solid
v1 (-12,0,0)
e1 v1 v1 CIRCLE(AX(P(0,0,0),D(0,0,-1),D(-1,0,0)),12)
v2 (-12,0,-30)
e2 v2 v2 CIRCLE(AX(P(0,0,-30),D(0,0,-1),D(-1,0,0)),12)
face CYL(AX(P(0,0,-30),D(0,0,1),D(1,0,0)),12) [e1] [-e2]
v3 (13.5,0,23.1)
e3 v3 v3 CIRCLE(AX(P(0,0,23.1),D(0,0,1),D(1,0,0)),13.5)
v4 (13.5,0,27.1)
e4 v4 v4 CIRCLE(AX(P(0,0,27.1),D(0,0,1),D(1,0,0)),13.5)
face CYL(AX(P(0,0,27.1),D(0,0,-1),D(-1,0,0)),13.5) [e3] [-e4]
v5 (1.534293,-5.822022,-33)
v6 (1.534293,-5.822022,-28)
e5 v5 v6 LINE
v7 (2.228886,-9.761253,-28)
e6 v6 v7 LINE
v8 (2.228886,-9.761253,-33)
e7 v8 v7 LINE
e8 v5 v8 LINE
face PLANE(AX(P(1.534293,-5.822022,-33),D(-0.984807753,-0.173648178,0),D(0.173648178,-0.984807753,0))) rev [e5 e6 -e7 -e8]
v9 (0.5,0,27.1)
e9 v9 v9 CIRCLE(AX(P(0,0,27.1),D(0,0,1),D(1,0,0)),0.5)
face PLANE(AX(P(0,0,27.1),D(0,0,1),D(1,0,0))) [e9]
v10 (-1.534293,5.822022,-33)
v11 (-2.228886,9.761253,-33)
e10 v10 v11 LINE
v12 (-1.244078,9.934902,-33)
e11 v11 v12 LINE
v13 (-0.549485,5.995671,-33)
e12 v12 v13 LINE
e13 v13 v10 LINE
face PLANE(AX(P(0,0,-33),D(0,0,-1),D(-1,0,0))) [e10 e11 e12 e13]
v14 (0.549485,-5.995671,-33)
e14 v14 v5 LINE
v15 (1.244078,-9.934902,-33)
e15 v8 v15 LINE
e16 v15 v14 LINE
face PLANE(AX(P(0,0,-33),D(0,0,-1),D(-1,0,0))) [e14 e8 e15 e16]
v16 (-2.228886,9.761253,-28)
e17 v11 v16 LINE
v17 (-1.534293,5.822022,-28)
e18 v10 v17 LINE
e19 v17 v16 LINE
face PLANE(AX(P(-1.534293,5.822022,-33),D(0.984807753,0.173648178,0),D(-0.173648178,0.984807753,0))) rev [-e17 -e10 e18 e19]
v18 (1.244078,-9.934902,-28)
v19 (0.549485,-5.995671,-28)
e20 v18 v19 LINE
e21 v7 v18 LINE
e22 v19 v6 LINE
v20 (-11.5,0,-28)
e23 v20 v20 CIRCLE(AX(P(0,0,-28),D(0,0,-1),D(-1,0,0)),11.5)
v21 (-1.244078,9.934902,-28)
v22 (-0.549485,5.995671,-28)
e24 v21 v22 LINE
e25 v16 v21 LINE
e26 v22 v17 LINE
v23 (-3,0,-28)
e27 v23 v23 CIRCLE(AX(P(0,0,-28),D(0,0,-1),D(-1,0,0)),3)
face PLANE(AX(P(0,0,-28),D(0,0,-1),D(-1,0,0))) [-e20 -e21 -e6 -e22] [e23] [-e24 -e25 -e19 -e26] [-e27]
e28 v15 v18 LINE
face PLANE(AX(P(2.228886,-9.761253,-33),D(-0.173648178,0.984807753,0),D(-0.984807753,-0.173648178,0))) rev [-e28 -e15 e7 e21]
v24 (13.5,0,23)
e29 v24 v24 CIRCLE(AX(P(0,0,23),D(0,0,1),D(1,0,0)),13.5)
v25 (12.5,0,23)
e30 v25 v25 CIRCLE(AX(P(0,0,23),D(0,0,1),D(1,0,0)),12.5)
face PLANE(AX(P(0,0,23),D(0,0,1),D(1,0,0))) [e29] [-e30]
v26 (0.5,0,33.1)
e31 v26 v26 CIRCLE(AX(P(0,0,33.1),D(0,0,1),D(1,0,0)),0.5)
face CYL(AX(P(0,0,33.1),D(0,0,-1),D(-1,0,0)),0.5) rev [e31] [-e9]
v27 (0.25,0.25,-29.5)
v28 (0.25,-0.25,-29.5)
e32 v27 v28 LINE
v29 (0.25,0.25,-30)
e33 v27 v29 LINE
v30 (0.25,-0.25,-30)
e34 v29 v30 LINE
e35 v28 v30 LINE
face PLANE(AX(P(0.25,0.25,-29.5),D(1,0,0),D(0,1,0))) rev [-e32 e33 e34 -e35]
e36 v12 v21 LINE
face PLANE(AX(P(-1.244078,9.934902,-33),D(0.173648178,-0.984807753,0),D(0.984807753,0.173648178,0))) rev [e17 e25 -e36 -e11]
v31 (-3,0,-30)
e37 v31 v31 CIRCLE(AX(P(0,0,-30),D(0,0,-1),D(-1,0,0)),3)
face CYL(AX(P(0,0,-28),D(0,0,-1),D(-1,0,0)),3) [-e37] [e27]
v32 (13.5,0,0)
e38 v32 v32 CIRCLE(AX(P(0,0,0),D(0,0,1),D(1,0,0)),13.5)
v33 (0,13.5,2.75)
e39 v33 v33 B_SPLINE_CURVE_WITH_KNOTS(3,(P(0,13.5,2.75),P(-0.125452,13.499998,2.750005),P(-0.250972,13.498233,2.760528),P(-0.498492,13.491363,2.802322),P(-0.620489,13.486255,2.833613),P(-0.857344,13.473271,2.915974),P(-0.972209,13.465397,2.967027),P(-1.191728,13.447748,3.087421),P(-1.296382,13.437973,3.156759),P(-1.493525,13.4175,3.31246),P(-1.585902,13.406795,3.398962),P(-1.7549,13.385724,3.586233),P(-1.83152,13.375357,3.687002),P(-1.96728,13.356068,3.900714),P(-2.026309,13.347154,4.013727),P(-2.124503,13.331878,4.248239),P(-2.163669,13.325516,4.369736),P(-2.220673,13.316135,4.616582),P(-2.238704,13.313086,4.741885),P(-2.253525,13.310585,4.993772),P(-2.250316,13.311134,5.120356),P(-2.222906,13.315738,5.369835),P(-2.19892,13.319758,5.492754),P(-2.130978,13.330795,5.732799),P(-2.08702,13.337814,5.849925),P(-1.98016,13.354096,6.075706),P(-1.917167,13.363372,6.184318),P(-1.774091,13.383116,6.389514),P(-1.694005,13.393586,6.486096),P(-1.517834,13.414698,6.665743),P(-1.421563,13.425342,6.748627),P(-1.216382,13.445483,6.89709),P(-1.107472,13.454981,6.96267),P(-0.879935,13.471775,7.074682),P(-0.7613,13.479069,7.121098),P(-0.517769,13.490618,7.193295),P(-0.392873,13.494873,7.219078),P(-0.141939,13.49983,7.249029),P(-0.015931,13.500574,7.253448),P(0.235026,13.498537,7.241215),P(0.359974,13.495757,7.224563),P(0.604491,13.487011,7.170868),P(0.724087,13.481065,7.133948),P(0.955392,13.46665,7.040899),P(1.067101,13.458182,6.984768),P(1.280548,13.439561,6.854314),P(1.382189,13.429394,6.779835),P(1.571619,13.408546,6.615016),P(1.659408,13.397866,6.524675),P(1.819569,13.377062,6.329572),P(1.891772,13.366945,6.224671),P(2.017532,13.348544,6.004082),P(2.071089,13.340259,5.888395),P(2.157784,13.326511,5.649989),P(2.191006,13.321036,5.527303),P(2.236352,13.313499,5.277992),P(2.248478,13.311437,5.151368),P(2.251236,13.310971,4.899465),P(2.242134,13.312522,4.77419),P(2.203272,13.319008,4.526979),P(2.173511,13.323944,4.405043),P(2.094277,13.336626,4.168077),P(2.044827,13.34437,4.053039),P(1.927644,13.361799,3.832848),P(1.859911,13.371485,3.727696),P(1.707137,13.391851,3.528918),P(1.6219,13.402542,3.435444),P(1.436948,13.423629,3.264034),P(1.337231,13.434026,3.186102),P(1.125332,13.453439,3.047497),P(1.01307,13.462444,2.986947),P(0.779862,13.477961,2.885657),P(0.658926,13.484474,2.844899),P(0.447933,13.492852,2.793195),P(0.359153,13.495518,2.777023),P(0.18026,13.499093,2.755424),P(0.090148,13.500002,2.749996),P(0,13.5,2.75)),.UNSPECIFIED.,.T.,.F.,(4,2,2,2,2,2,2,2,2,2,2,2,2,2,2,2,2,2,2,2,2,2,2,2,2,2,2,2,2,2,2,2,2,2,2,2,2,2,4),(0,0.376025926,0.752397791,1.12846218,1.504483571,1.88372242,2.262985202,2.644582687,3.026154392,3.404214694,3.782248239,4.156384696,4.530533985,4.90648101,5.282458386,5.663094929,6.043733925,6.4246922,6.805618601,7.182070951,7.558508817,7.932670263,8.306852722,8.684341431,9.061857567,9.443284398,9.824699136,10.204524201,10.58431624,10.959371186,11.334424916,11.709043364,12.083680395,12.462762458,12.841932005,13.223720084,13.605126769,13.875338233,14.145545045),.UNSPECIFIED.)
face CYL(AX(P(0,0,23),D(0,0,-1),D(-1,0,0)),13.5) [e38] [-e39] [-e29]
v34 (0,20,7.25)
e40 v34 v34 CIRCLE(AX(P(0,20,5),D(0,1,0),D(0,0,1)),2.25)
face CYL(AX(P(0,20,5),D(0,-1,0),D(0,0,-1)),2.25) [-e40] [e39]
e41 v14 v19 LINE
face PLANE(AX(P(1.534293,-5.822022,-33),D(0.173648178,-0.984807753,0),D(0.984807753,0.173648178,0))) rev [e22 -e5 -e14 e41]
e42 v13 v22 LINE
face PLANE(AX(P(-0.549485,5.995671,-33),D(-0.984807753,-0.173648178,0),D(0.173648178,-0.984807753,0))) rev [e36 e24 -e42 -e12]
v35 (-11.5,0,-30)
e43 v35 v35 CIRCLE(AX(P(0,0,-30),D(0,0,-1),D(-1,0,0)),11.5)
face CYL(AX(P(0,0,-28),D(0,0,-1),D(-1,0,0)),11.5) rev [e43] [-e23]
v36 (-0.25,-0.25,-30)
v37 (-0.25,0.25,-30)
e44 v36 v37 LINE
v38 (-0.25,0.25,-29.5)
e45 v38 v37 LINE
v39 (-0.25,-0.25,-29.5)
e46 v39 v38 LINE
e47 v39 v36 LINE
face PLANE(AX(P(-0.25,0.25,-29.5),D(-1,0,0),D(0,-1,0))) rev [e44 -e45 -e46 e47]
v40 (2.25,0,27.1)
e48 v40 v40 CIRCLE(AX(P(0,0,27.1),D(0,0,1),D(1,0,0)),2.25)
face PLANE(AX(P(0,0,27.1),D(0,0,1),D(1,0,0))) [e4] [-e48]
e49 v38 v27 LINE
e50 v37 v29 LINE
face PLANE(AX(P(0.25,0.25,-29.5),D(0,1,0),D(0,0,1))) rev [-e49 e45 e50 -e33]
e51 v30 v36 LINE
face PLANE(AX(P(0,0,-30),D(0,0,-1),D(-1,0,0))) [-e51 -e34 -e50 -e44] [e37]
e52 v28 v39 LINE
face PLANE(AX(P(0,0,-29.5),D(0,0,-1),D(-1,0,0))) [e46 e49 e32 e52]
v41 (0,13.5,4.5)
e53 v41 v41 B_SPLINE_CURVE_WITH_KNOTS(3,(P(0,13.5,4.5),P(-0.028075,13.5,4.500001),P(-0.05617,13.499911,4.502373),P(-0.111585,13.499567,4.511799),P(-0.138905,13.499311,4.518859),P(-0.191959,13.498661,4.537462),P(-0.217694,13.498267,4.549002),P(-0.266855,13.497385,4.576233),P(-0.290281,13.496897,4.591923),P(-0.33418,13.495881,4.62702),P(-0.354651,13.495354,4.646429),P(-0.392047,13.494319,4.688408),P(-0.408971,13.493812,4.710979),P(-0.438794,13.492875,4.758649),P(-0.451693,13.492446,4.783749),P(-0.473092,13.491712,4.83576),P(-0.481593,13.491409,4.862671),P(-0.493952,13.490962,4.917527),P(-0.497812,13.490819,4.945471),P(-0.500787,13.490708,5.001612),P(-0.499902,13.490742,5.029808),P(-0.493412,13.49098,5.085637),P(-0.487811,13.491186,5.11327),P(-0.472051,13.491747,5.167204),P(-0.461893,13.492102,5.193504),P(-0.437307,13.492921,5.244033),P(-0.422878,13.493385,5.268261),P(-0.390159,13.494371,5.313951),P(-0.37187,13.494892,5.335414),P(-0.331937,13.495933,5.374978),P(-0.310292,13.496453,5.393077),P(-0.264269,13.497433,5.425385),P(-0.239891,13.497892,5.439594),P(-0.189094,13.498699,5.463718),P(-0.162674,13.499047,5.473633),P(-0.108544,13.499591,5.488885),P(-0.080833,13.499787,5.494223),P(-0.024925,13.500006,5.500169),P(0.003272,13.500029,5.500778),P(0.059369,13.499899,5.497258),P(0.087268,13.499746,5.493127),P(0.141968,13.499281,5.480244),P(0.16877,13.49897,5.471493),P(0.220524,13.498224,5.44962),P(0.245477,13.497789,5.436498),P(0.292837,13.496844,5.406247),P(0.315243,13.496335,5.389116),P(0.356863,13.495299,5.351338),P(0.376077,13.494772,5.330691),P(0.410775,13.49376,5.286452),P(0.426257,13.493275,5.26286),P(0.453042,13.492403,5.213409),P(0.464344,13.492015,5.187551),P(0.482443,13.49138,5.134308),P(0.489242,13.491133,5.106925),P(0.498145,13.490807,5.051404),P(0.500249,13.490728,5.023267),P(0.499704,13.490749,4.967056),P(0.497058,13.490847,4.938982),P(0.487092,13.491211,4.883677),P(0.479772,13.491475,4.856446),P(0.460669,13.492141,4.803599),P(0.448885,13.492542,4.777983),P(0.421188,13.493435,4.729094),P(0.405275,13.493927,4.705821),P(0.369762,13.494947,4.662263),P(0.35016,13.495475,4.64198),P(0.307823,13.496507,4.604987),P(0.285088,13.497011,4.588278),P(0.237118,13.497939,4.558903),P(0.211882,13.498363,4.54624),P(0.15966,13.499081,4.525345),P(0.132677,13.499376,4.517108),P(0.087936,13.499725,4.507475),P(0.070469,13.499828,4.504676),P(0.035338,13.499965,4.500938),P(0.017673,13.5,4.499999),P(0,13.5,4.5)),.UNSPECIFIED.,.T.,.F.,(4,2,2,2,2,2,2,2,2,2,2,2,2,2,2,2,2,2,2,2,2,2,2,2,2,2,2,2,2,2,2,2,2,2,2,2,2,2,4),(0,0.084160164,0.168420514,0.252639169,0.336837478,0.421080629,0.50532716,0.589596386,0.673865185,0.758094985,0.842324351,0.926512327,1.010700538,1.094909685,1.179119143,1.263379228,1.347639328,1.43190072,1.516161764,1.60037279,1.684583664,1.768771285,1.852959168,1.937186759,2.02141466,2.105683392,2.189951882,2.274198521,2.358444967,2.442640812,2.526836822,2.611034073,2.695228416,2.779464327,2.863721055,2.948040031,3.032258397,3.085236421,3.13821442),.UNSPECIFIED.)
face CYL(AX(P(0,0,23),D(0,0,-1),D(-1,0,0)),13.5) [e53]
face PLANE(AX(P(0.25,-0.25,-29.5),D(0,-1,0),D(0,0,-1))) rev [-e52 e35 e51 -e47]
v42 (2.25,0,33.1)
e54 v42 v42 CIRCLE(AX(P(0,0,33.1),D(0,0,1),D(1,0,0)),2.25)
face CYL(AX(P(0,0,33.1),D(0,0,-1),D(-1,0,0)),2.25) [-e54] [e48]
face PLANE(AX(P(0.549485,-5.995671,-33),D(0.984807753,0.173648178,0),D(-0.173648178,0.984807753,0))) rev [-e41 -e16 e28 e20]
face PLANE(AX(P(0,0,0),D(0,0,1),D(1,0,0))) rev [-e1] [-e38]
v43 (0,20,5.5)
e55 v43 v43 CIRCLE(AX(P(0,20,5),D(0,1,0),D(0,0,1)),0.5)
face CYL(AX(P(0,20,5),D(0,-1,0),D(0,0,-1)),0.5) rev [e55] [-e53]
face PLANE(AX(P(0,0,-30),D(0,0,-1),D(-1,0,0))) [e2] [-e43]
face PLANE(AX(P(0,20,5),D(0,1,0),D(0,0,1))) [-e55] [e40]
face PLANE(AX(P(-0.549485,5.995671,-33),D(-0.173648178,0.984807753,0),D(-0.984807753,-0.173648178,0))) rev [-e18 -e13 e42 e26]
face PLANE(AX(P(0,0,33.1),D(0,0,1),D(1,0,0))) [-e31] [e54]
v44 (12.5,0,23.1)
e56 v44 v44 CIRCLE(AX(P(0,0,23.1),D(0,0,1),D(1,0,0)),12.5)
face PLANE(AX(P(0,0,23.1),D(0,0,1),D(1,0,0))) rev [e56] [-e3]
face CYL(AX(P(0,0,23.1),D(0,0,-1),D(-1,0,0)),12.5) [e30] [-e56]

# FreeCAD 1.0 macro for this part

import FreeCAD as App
import Part
import Sketcher

V = App.Vector
Q = App.Units.Quantity

doc = App.newDocument("Part")
body = doc.addObject("PartDesign::Body", "Body")

# Sketch on XY plane
sketch1 = body.newObject("Sketcher::SketchObject", "Sketch")
sketch1.AttachmentSupport = (doc.getObject("XY_Plane"), [""])
sketch1.MapMode = "FlatFace"
sketch1.addGeometry(Part.Circle(V(0, 0, 0), V(0, 0, 1), 14), False)
sketch1.addConstraint([
    Sketcher.Constraint("Coincident", 0, 3, -1, 1),
    Sketcher.Constraint("Diameter", 0, Q("27 mm")),
])
pad1 = body.newObject("PartDesign::Pad", "Pad")
pad1.Profile = sketch1
pad1.Length = 23

# Sketch on XY plane
sketch2 = body.newObject("Sketcher::SketchObject", "Sketch001")
sketch2.AttachmentSupport = (doc.getObject("XY_Plane"), [""])
sketch2.MapMode = "FlatFace"
sketch2.AttachmentOffset = App.Placement(V(0, 0, 23), App.Rotation())
sketch2.addGeometry(Part.Circle(V(0, 0, 0), V(0, 0, 1), 12), False)
sketch2.addConstraint([
    Sketcher.Constraint("Coincident", 0, 3, -1, 1),
    Sketcher.Constraint("Diameter", 0, Q("25 mm")),
])
pad2 = body.newObject("PartDesign::Pad", "Pad001")
pad2.Profile = sketch2
pad2.Length = 0.1

# Sketch on XY plane
sketch3 = body.newObject("Sketcher::SketchObject", "Sketch002")
sketch3.AttachmentSupport = (doc.getObject("XY_Plane"), [""])
sketch3.MapMode = "FlatFace"
sketch3.AttachmentOffset = App.Placement(V(0, 0, 23.1), App.Rotation())
sketch3.addGeometry(Part.Circle(V(0, 0, 0), V(0, 0, 1), 14), False)
sketch3.addConstraint([
    Sketcher.Constraint("Coincident", 0, 3, -1, 1),
    Sketcher.Constraint("Diameter", 0, Q("27 mm")),
])
pad3 = body.newObject("PartDesign::Pad", "Pad002")
pad3.Profile = sketch3
pad3.Length = 4

# Sketch on XY plane
sketch4 = body.newObject("Sketcher::SketchObject", "Sketch003")
sketch4.AttachmentSupport = (doc.getObject("XY_Plane"), [""])
sketch4.MapMode = "FlatFace"
sketch4.addGeometry(Part.Circle(V(0, 0, 0), V(0, 0, 1), 12), False)
sketch4.addConstraint([
    Sketcher.Constraint("Coincident", 0, 3, -1, 1),
    Sketcher.Constraint("Diameter", 0, Q("24 mm")),
])
pad4 = body.newObject("PartDesign::Pad", "Pad003")
pad4.Profile = sketch4
pad4.Length = 30
pad4.Reversed = True

# Sketch on XY plane
sketch5 = body.newObject("Sketcher::SketchObject", "Sketch004")
sketch5.AttachmentSupport = (doc.getObject("XY_Plane"), [""])
sketch5.MapMode = "FlatFace"
sketch5.AttachmentOffset = App.Placement(V(0, 0, -30), App.Rotation())
sketch5.addGeometry([
    Part.Circle(V(0, 0, 0), V(0, 0, 1), 11.5),
    Part.Circle(V(0, 0, 0), V(0, 0, 1), 3),
], False)
sketch5.addConstraint([
    Sketcher.Constraint("Coincident", 0, 3, -1, 1),
    Sketcher.Constraint("Coincident", 1, 3, -1, 1),
    Sketcher.Constraint("Diameter", 0, Q("23 mm")),
    Sketcher.Constraint("Diameter", 1, Q("6 mm")),
])
pocket1 = body.newObject("PartDesign::Pocket", "Pocket")
pocket1.Profile = sketch5
pocket1.Length = 2
pocket1.Reversed = True

# Sketch on XY plane
sketch6 = body.newObject("Sketcher::SketchObject", "Sketch005")
sketch6.AttachmentSupport = (doc.getObject("XY_Plane"), [""])
sketch6.MapMode = "FlatFace"
sketch6.AttachmentOffset = App.Placement(V(0, 0, 27.1), App.Rotation())
sketch6.addGeometry([
    Part.Circle(V(0, 0, 0), V(0, 0, 1), 2.2),
    Part.Circle(V(0, 0, 0), V(0, 0, 1), 0.5),
], False)
sketch6.addConstraint([
    Sketcher.Constraint("Coincident", 0, 3, -1, 1),
    Sketcher.Constraint("Coincident", 1, 3, -1, 1),
    Sketcher.Constraint("Diameter", 1, Q("1 mm")),
    Sketcher.Constraint("Diameter", 0, Q("4.5 mm")),
])
pad5 = body.newObject("PartDesign::Pad", "Pad004")
pad5.Profile = sketch6
pad5.Length = 6

# Sketch on XZ plane
sketch7 = body.newObject("Sketcher::SketchObject", "Sketch006")
sketch7.AttachmentSupport = (doc.getObject("XZ_Plane"), [""])
sketch7.MapMode = "FlatFace"
sketch7.addGeometry([
    Part.Circle(V(0, 5, 0), V(0, 0, 1), 2.2),
    Part.Circle(V(0, 5, 0), V(0, 0, 1), 0.5),
], False)
sketch7.addConstraint([
    Sketcher.Constraint("Coincident", 1, 3, 0, 3),
    Sketcher.Constraint("PointOnObject", 0, 3, -2),
    Sketcher.Constraint("Diameter", 1, Q("1 mm")),
    Sketcher.Constraint("Diameter", 0, Q("4.5 mm")),
    Sketcher.Constraint("DistanceY", -1, 1, 0, 3, Q("5 mm")),
])
pad6 = body.newObject("PartDesign::Pad", "Pad005")
pad6.Profile = sketch7
pad6.Length = 20
pad6.Reversed = True

# Sketch on XY plane
sketch8 = body.newObject("Sketcher::SketchObject", "Sketch007")
sketch8.AttachmentSupport = (doc.getObject("XY_Plane"), [""])
sketch8.MapMode = "FlatFace"
sketch8.AttachmentOffset = App.Placement(V(0, 0, -28), App.Rotation())
sketch8.addGeometry([
    Part.LineSegment(V(-1.2, 9.9, 0), V(-0.5, 6, 0)),  # 0
    Part.LineSegment(V(-0.5, 6, 0), V(-1.5, 5.8, 0)),  # 1
    Part.LineSegment(V(-1.5, 5.8, 0), V(-2.2, 9.8, 0)),  # 2
    Part.LineSegment(V(-2.2, 9.8, 0), V(-1.2, 9.9, 0)),  # 3
    Part.LineSegment(V(2.2, -9.8, 0), V(1.2, -9.9, 0)),  # 4
    Part.LineSegment(V(1.2, -9.9, 0), V(0.5, -6, 0)),  # 5
    Part.LineSegment(V(0.5, -6, 0), V(1.5, -5.8, 0)),  # 6
    Part.LineSegment(V(1.5, -5.8, 0), V(2.2, -9.8, 0)),  # 7
], False)
sketch8.addConstraint([
    Sketcher.Constraint("Coincident", 0, 2, 1, 1),
    Sketcher.Constraint("Coincident", 1, 2, 2, 1),
    Sketcher.Constraint("Coincident", 2, 2, 3, 1),
    Sketcher.Constraint("Coincident", 3, 2, 0, 1),
    Sketcher.Constraint("Coincident", 4, 2, 5, 1),
    Sketcher.Constraint("Coincident", 5, 2, 6, 1),
    Sketcher.Constraint("Coincident", 6, 2, 7, 1),
    Sketcher.Constraint("Coincident", 7, 2, 4, 1),
    Sketcher.Constraint("Symmetric", 3, 2, 4, 2, -1, 1),
    Sketcher.Constraint("Symmetric", 0, 2, 5, 2, -1, 1),
    Sketcher.Constraint("Symmetric", 1, 2, 6, 2, -1, 1),
    Sketcher.Constraint("Symmetric", 2, 2, 7, 2, -1, 1),
    Sketcher.Constraint("Perpendicular", 0, 1),
    Sketcher.Constraint("Perpendicular", 1, 2),
    Sketcher.Constraint("Perpendicular", 2, 3),
    Sketcher.Constraint("Angle", 0, Q("-80 deg")),
    Sketcher.Constraint("Distance", 0, Q("4 mm")),
    Sketcher.Constraint("Distance", 1, Q("1 mm")),
    Sketcher.Constraint("DistanceY", -1, 1, 3, 2, Q("9.934902 mm")),
    Sketcher.Constraint("DistanceX", 1, 2, 4, 2, Q("2.778371 mm")),
])
pad7 = body.newObject("PartDesign::Pad", "Pad006")
pad7.Profile = sketch8
pad7.Length = 5
pad7.Reversed = True

# Sketch on XY plane
sketch9 = body.newObject("Sketcher::SketchObject", "Sketch008")
sketch9.AttachmentSupport = (doc.getObject("XY_Plane"), [""])
sketch9.MapMode = "FlatFace"
sketch9.AttachmentOffset = App.Placement(V(0, 0, -30), App.Rotation())
sketch9.addGeometry([
    Part.LineSegment(V(0.2, 0.2, 0), V(0.2, -0.2, 0)),
    Part.LineSegment(V(0.2, -0.2, 0), V(-0.2, -0.2, 0)),
    Part.LineSegment(V(-0.2, -0.2, 0), V(-0.2, 0.2, 0)),
    Part.LineSegment(V(-0.2, 0.2, 0), V(0.2, 0.2, 0)),
], False)
sketch9.addConstraint([
    Sketcher.Constraint("Coincident", 0, 2, 1, 1),
    Sketcher.Constraint("Coincident", 1, 2, 2, 1),
    Sketcher.Constraint("Coincident", 2, 2, 3, 1),
    Sketcher.Constraint("Coincident", 3, 2, 0, 1),
    Sketcher.Constraint("Vertical", 0),
    Sketcher.Constraint("Horizontal", 1),
    Sketcher.Constraint("Vertical", 2),
    Sketcher.Constraint("Horizontal", 3),
    Sketcher.Constraint("Symmetric", 0, 2, 2, 2, -1, 1),
    Sketcher.Constraint("Equal", 3, 0),
    Sketcher.Constraint("DistanceX", 1, 2, 1, 1, Q("0.5 mm")),
])
pocket2 = body.newObject("PartDesign::Pocket", "Pocket001")
pocket2.Profile = sketch9
pocket2.Length = 0.5
pocket2.Reversed = True

doc.recompute()
